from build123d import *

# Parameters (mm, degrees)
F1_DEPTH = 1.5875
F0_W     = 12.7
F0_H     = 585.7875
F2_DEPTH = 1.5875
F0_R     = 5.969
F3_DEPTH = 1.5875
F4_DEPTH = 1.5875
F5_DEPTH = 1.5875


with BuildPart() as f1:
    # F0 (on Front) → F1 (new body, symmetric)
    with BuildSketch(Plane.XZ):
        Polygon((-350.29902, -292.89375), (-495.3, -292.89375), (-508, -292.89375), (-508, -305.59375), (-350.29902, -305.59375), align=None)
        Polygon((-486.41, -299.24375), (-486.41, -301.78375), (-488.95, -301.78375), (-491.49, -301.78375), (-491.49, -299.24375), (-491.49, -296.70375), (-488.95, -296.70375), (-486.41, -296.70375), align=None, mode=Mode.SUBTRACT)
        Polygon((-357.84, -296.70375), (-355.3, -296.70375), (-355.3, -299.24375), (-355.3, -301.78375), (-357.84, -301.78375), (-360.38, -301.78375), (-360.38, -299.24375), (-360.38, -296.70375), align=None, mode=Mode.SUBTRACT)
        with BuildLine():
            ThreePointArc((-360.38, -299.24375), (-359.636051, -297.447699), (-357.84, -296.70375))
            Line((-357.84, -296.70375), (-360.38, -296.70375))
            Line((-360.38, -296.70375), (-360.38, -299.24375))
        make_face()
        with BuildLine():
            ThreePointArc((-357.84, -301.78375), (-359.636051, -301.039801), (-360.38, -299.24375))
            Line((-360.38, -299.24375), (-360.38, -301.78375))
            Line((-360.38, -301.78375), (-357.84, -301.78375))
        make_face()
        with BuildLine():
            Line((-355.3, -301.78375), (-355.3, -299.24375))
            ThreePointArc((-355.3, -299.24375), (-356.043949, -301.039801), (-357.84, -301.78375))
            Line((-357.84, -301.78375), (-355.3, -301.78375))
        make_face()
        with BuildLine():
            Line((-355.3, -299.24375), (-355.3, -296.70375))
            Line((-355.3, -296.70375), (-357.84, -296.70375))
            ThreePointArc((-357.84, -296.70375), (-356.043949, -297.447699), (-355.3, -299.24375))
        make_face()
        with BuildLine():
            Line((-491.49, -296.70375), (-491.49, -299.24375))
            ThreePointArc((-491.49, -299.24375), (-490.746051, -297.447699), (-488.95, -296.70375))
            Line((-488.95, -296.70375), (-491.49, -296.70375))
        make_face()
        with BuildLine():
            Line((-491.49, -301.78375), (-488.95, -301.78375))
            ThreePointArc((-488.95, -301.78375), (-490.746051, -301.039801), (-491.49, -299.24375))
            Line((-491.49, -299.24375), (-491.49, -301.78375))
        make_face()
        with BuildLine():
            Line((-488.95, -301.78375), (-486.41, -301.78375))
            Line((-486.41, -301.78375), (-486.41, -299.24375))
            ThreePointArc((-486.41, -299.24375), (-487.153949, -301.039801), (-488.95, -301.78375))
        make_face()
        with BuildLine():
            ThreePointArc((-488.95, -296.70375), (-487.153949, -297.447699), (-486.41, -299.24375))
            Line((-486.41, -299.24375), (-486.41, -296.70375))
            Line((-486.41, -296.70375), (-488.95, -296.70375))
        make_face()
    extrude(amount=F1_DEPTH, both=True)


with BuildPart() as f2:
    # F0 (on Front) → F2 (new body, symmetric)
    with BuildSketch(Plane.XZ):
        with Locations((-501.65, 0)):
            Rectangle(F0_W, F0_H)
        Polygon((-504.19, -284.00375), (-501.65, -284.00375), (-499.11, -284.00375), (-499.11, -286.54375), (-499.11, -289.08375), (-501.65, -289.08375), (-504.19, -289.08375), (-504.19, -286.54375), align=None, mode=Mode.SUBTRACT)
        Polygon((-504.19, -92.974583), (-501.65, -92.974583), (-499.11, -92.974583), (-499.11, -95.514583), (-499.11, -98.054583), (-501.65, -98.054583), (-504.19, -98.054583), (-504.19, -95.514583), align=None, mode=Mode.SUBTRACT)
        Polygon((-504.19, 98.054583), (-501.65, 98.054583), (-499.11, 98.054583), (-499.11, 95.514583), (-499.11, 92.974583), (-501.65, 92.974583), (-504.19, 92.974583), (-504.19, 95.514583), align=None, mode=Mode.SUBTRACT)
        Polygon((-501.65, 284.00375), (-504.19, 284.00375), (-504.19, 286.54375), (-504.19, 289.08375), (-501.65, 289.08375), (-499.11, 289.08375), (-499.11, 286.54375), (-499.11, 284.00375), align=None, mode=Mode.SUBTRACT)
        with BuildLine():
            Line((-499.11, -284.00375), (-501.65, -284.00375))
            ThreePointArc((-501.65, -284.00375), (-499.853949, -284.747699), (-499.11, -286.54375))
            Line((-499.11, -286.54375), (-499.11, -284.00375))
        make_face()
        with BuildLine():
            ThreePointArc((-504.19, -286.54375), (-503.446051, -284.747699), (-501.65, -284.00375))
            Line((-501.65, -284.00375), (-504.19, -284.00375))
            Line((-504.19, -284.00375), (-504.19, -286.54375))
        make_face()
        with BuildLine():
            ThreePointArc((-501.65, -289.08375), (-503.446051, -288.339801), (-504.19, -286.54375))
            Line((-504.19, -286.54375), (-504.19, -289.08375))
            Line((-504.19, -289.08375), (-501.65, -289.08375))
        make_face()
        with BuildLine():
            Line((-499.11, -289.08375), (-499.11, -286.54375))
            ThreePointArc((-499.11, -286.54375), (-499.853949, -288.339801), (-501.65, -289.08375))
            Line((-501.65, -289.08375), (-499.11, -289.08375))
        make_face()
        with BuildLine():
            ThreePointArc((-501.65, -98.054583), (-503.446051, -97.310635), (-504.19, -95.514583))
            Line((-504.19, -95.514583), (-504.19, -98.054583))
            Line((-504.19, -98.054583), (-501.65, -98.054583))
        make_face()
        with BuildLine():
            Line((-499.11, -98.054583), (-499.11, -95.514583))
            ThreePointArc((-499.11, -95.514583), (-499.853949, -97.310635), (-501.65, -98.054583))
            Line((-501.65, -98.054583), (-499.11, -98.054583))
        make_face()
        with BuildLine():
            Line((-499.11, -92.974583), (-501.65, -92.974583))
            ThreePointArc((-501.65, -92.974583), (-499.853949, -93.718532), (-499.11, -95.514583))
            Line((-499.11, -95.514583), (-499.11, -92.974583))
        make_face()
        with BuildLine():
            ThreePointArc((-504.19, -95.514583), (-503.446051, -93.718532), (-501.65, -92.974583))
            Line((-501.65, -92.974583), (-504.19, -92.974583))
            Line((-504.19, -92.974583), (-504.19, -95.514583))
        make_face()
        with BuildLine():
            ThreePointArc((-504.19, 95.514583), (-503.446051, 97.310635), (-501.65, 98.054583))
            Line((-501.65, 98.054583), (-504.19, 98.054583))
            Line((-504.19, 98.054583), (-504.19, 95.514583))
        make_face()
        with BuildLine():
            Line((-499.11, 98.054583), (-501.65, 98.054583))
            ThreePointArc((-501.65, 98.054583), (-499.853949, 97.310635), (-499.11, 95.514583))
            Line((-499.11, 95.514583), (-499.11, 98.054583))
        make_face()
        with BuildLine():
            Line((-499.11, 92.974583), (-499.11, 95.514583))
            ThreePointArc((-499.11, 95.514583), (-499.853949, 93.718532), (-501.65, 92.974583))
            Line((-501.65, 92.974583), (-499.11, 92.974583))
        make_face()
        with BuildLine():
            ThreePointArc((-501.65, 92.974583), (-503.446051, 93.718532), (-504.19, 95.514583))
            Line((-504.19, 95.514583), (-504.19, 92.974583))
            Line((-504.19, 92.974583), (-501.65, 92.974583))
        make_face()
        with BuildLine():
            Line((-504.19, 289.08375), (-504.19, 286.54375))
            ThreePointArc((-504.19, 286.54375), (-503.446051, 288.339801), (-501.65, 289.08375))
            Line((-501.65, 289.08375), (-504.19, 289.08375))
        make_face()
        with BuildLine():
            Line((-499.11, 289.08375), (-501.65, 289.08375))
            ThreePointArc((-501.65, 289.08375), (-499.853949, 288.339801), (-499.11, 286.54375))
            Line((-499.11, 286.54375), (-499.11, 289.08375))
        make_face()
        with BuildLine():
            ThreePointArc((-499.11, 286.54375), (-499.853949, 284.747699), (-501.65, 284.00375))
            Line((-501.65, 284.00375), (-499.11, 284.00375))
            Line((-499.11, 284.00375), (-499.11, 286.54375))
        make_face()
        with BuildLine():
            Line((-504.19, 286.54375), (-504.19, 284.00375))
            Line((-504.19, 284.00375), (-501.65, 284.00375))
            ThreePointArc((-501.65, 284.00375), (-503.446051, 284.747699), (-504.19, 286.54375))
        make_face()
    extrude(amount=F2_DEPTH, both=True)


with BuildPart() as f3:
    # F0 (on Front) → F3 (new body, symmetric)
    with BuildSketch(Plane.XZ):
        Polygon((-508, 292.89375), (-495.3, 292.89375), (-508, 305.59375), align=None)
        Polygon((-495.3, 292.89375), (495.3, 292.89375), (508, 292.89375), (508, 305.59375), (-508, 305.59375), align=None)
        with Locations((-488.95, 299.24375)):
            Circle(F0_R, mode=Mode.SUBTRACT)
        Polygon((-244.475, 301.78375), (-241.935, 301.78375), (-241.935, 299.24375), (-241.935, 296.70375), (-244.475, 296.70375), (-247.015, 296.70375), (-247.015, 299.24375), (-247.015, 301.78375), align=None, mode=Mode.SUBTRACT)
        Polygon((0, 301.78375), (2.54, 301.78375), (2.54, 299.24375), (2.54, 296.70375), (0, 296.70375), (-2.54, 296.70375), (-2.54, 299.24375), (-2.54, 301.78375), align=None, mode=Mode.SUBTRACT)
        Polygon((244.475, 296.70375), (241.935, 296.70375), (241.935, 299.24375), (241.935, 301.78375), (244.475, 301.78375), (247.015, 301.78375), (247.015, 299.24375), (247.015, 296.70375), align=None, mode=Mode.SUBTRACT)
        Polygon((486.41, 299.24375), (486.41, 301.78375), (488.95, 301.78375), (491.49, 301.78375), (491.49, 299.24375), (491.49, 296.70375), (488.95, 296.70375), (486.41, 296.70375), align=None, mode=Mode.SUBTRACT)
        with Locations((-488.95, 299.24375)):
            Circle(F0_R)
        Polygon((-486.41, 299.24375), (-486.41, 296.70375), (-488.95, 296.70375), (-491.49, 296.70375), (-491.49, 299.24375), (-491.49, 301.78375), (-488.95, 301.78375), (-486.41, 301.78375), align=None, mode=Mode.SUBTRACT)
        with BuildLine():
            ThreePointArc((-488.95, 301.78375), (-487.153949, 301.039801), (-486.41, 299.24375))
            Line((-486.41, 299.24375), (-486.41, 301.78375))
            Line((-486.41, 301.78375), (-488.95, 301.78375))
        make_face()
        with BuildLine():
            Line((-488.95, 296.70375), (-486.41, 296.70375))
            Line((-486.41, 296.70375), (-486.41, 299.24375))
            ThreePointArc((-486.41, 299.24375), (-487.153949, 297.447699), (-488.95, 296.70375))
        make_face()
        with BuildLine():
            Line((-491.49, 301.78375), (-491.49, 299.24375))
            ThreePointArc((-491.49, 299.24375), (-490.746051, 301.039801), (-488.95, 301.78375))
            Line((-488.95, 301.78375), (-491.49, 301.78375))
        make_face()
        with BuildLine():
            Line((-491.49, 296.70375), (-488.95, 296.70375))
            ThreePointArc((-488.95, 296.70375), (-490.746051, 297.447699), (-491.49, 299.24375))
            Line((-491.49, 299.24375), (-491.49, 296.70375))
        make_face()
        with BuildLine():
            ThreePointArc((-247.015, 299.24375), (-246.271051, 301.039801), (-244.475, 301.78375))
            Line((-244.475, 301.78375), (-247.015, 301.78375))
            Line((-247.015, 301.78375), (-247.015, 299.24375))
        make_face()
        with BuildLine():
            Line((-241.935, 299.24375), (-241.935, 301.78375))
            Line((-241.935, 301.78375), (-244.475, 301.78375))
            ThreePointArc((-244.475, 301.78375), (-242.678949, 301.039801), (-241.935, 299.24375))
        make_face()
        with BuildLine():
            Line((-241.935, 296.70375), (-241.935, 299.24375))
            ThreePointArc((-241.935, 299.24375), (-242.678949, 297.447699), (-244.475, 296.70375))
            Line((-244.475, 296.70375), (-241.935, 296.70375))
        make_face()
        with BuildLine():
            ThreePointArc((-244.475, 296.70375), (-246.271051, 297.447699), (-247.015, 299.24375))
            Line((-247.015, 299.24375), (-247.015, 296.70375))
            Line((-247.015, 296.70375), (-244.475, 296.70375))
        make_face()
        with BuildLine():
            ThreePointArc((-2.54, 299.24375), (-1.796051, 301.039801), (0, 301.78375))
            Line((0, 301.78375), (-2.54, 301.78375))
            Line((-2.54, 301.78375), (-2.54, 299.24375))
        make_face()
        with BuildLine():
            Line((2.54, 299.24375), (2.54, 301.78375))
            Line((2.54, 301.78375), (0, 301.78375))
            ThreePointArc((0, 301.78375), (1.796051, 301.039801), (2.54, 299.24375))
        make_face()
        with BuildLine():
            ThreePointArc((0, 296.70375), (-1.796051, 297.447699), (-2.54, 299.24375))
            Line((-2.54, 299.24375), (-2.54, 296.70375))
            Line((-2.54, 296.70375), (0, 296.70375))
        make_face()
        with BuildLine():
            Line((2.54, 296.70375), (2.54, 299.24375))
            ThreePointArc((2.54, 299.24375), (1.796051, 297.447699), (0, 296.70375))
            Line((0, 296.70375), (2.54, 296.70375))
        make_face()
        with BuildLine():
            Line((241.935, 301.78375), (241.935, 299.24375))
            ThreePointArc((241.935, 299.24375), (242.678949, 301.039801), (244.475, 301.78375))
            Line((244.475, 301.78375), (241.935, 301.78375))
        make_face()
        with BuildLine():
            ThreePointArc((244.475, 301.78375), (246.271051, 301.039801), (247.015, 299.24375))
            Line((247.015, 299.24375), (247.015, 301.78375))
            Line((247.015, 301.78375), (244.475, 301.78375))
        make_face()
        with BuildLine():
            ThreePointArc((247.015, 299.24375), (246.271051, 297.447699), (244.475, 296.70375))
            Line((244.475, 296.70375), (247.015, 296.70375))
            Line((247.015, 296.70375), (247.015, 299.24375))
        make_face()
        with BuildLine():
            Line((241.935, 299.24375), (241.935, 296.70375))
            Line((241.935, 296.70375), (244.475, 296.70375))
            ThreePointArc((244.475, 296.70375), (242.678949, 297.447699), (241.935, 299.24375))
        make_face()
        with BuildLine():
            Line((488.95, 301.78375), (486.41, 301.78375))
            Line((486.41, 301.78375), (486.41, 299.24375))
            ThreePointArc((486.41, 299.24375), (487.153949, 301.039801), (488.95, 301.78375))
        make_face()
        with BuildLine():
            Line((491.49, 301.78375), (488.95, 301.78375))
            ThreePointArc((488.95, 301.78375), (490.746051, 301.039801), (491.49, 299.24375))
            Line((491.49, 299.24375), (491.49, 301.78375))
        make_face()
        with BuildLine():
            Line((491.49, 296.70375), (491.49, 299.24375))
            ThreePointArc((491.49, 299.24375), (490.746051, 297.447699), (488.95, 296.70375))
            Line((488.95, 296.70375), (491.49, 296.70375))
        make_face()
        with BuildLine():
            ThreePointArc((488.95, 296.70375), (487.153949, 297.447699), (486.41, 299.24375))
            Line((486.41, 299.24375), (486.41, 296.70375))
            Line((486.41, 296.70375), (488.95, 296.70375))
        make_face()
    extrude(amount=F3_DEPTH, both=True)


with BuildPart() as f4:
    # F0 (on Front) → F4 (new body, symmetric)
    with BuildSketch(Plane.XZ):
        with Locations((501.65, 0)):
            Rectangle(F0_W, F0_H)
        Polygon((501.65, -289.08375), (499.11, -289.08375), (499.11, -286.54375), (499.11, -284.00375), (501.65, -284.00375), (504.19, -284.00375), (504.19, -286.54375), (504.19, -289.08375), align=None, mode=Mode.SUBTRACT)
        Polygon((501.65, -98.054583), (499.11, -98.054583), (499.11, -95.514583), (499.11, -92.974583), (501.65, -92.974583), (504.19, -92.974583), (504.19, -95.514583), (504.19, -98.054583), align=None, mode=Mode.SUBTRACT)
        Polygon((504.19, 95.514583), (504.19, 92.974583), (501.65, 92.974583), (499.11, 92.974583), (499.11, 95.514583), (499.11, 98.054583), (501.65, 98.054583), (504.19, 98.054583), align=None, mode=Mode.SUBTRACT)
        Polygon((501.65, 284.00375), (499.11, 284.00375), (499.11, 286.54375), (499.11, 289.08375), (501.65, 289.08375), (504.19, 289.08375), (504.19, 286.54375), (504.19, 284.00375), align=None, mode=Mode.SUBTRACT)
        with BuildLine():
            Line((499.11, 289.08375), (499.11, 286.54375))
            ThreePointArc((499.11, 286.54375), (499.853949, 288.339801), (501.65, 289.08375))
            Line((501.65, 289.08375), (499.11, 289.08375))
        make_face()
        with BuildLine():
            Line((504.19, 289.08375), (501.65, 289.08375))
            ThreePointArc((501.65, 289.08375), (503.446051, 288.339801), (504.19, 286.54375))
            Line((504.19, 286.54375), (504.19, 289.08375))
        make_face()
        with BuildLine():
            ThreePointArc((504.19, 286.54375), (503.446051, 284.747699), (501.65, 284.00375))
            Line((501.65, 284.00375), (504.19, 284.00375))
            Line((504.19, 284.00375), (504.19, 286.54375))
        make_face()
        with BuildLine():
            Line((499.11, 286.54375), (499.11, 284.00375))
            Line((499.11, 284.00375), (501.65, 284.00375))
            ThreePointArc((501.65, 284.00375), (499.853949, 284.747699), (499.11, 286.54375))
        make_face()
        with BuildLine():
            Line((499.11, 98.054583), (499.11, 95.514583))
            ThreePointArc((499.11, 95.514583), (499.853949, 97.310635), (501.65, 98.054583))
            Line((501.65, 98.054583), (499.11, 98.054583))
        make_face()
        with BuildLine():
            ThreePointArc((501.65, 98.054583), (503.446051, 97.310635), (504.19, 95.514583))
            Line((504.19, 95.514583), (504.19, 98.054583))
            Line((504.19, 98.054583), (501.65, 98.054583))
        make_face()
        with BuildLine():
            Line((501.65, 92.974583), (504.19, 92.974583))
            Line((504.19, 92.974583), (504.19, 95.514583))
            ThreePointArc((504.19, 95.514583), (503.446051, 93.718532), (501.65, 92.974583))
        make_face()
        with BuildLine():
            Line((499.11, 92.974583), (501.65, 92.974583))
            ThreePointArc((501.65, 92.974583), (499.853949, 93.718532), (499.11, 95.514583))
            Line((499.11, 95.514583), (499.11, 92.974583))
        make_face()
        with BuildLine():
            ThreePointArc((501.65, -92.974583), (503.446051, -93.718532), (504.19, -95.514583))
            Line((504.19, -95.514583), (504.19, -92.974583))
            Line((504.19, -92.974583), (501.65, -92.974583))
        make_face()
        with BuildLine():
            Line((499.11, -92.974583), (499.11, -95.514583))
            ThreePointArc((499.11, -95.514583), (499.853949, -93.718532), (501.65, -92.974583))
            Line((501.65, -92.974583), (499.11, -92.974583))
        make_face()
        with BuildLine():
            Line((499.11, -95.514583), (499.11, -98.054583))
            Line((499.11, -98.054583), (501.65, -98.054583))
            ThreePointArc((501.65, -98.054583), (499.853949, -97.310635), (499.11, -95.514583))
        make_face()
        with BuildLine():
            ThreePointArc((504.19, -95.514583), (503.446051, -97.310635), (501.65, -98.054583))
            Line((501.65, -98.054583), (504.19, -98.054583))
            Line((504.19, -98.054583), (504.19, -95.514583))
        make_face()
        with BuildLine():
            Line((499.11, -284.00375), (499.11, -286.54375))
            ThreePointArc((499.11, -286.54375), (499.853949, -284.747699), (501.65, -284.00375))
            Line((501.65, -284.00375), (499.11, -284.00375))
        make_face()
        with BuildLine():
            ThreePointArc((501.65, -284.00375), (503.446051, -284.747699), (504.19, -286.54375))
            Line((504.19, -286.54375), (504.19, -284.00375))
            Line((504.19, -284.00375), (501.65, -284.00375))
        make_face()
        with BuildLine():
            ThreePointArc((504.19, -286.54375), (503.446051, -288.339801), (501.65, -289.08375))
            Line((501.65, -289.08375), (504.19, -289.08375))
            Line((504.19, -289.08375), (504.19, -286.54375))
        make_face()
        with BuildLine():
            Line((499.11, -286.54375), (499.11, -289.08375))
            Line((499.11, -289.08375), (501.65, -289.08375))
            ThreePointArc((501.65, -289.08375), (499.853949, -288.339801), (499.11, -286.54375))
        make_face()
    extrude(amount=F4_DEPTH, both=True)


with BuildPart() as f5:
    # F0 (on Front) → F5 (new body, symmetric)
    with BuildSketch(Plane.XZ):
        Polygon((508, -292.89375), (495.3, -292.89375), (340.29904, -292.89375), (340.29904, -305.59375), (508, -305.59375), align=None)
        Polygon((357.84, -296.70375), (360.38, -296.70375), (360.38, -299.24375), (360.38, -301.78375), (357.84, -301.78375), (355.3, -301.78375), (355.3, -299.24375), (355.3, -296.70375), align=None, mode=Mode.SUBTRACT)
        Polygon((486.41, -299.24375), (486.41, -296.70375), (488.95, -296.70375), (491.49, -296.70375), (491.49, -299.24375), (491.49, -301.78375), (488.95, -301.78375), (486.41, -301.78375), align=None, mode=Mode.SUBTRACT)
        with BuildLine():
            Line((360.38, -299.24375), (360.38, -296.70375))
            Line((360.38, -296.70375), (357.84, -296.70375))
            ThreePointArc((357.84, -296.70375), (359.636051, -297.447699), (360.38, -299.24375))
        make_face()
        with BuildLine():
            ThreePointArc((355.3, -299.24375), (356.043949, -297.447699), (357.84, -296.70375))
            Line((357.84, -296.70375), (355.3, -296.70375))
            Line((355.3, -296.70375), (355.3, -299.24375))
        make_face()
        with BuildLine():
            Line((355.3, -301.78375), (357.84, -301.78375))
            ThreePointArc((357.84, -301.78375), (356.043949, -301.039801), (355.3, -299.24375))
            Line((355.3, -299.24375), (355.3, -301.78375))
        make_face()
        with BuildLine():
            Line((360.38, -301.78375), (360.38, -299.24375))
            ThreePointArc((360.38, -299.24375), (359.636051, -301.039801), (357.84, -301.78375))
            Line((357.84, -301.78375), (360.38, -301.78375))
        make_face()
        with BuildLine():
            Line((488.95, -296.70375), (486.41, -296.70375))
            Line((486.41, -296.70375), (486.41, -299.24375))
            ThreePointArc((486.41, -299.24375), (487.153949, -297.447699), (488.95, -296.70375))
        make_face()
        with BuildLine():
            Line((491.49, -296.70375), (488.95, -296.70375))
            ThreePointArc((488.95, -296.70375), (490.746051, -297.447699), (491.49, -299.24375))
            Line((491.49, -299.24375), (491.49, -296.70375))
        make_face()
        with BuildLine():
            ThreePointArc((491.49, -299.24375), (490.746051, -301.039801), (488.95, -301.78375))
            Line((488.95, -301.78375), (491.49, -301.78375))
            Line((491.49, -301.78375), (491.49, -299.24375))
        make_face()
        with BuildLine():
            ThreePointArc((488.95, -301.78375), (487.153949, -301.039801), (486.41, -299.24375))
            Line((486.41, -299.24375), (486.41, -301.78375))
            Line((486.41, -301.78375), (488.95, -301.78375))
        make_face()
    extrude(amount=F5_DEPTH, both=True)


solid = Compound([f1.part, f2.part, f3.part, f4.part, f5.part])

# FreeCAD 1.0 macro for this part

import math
import FreeCAD as App
import Part
import Sketcher
Q = App.Units.Quantity

doc = App.newDocument("Part")
body = doc.addObject("PartDesign::Body", "Body")

sketch1 = body.newObject("Sketcher::SketchObject", "Sketch")
sketch1.AttachmentSupport = (doc.getObject("XZ_Plane"), [""])
sketch1.MapMode = "FlatFace"
sketch1.addGeometry([
    Part.LineSegment(App.Vector(-350.3, -292.9, 0), App.Vector(-508, -292.9, 0)),
    Part.LineSegment(App.Vector(-508, -292.9, 0), App.Vector(-508, -305.6, 0)),
    Part.LineSegment(App.Vector(-508, -305.6, 0), App.Vector(-350.3, -305.6, 0)),
    Part.LineSegment(App.Vector(-350.3, -305.6, 0), App.Vector(-350.3, -292.9, 0)),
    Part.ArcOfCircle(Part.Circle(App.Vector(-489, -299.2, 0), App.Vector(0, 0, 1), 2.5), math.radians(-90), math.radians(0)),
    Part.ArcOfCircle(Part.Circle(App.Vector(-488.9, -299.2, 0), App.Vector(0, 0, 1), 2.5), math.radians(-180), math.radians(-90)),
    Part.ArcOfCircle(Part.Circle(App.Vector(-488.9, -299.2, 0), App.Vector(0, 0, 1), 2.5), math.radians(90), math.radians(180)),
    Part.ArcOfCircle(Part.Circle(App.Vector(-489, -299.2, 0), App.Vector(0, 0, 1), 2.5), math.radians(0), math.radians(90)),
    Part.ArcOfCircle(Part.Circle(App.Vector(-357.8, -299.2, 0), App.Vector(0, 0, 1), 2.5), math.radians(-90), math.radians(0)),
    Part.ArcOfCircle(Part.Circle(App.Vector(-357.8, -299.2, 0), App.Vector(0, 0, 1), 2.5), math.radians(-180), math.radians(-90)),
    Part.ArcOfCircle(Part.Circle(App.Vector(-357.8, -299.2, 0), App.Vector(0, 0, 1), 2.5), math.radians(90), math.radians(180)),
    Part.ArcOfCircle(Part.Circle(App.Vector(-357.8, -299.2, 0), App.Vector(0, 0, 1), 2.5), math.radians(0), math.radians(90)),
], False)
sketch1.addConstraint([
    Sketcher.Constraint("Coincident", 0, 2, 1, 1),
    Sketcher.Constraint("Coincident", 1, 2, 2, 1),
    Sketcher.Constraint("Coincident", 2, 2, 3, 1),
    Sketcher.Constraint("Coincident", 3, 2, 0, 1),
    Sketcher.Constraint("Tangent", 4, 1, 5, 2),
    Sketcher.Constraint("Tangent", 5, 1, 6, 2),
    Sketcher.Constraint("Tangent", 6, 1, 7, 2),
    Sketcher.Constraint("Tangent", 7, 1, 4, 2),
    Sketcher.Constraint("Tangent", 8, 1, 9, 2),
    Sketcher.Constraint("Tangent", 9, 1, 10, 2),
    Sketcher.Constraint("Tangent", 10, 1, 11, 2),
    Sketcher.Constraint("Tangent", 11, 1, 8, 2),
    Sketcher.Constraint("Horizontal", 0),
    Sketcher.Constraint("Vertical", 1),
    Sketcher.Constraint("Horizontal", 2),
    Sketcher.Constraint("Vertical", 3),
    Sketcher.Constraint("Equal", 4, 5),
    Sketcher.Constraint("Equal", 7, 8),
    Sketcher.Constraint("Equal", 8, 9),
    Sketcher.Constraint("Horizontal", 7, 3, 8, 3),
    Sketcher.Constraint("Horizontal", 11, 3, 5, 1),
    Sketcher.Constraint("Horizontal", 5, 1, 7, 1),
    Sketcher.Constraint("Horizontal", 7, 1, 9, 1),
    Sketcher.Constraint("Horizontal", 9, 1, 11, 1),
    Sketcher.Constraint("Vertical", 7, 3, 4, 1),
    Sketcher.Constraint("Vertical", 4, 1, 6, 1),
    Sketcher.Constraint("Vertical", 11, 3, 8, 1),
    Sketcher.Constraint("Vertical", 8, 1, 10, 1),
    Sketcher.Constraint("Radius", 4, Q("0.1 in")),
    Sketcher.Constraint("DistanceY", 1, 2, 1, 1, Q("0.5 in")),
    Sketcher.Constraint("DistanceX", 0, 2, -1, 1, Q("20 in")),
    Sketcher.Constraint("DistanceX", 4, 3, -1, 1, Q("19.25 in")),
    Sketcher.Constraint("DistanceY", 4, 3, 0, 2, Q("0.25 in")),
    Sketcher.Constraint("DistanceX", 0, 2, 0, 1, Q("6.2087 in")),
    Sketcher.Constraint("DistanceY", 4, 3, -1, 1, Q("11.78125 in")),
    Sketcher.Constraint("DistanceX", 8, 3, -1, 1, 357.840001),
])
pad1 = body.newObject("PartDesign::Pad", "Pad")
pad1.Profile = sketch1
pad1.Length = Q("0.125 in")
pad1.Midplane = True
body2 = doc.addObject("PartDesign::Body", "Body001")

sketch2 = body2.newObject("Sketcher::SketchObject", "Sketch001")
sketch2.AttachmentSupport = (doc.getObject("XZ_Plane001"), [""])
sketch2.MapMode = "FlatFace"
sketch2.addGeometry([
    Part.LineSegment(App.Vector(-508, 292.9, 0), App.Vector(-508, -292.9, 0)),
    Part.LineSegment(App.Vector(-508, -292.9, 0), App.Vector(-495.3, -292.9, 0)),
    Part.LineSegment(App.Vector(-495.3, -292.9, 0), App.Vector(-495.3, 292.9, 0)),
    Part.LineSegment(App.Vector(-495.3, 292.9, 0), App.Vector(-508, 292.9, 0)),
    Part.ArcOfCircle(Part.Circle(App.Vector(-501.6, -286.5, 0), App.Vector(0, 0, 1), 2.5), math.radians(90), math.radians(180)),
    Part.ArcOfCircle(Part.Circle(App.Vector(-501.7, -286.5, 0), App.Vector(0, 0, 1), 2.5), math.radians(0), math.radians(90)),
    Part.ArcOfCircle(Part.Circle(App.Vector(-501.7, -286.5, 0), App.Vector(0, 0, 1), 2.5), math.radians(-90), math.radians(0)),
    Part.ArcOfCircle(Part.Circle(App.Vector(-501.6, -286.5, 0), App.Vector(0, 0, 1), 2.5), math.radians(-180), math.radians(-90)),
    Part.ArcOfCircle(Part.Circle(App.Vector(-501.7, -95.5, 0), App.Vector(0, 0, 1), 2.5), math.radians(0), math.radians(90)),
    Part.ArcOfCircle(Part.Circle(App.Vector(-501.6, -95.5, 0), App.Vector(0, 0, 1), 2.5), math.radians(-90), math.radians(0)),
    Part.ArcOfCircle(Part.Circle(App.Vector(-501.7, -95.5, 0), App.Vector(0, 0, 1), 2.5), math.radians(180), math.radians(270)),
    Part.ArcOfCircle(Part.Circle(App.Vector(-501.6, -95.5, 0), App.Vector(0, 0, 1), 2.5), math.radians(90), math.radians(180)),
    Part.ArcOfCircle(Part.Circle(App.Vector(-501.7, 95.5, 0), App.Vector(0, 0, 1), 2.5), math.radians(90), math.radians(180)),
    Part.ArcOfCircle(Part.Circle(App.Vector(-501.6, 95.5, 0), App.Vector(0, 0, 1), 2.5), math.radians(0), math.radians(90)),
    Part.ArcOfCircle(Part.Circle(App.Vector(-501.7, 95.5, 0), App.Vector(0, 0, 1), 2.5), math.radians(-90), math.radians(0)),
    Part.ArcOfCircle(Part.Circle(App.Vector(-501.6, 95.5, 0), App.Vector(0, 0, 1), 2.5), math.radians(-180), math.radians(-90)),
    Part.ArcOfCircle(Part.Circle(App.Vector(-501.6, 286.5, 0), App.Vector(0, 0, 1), 2.5), math.radians(90), math.radians(180)),
    Part.ArcOfCircle(Part.Circle(App.Vector(-501.7, 286.5, 0), App.Vector(0, 0, 1), 2.5), math.radians(0), math.radians(90)),
    Part.ArcOfCircle(Part.Circle(App.Vector(-501.7, 286.5, 0), App.Vector(0, 0, 1), 2.5), math.radians(-90), math.radians(0)),
    Part.ArcOfCircle(Part.Circle(App.Vector(-501.6, 286.5, 0), App.Vector(0, 0, 1), 2.5), math.radians(-180), math.radians(-90)),
], False)
sketch2.addConstraint([
    Sketcher.Constraint("Coincident", 0, 2, 1, 1),
    Sketcher.Constraint("Coincident", 1, 2, 2, 1),
    Sketcher.Constraint("Coincident", 2, 2, 3, 1),
    Sketcher.Constraint("Coincident", 3, 2, 0, 1),
    Sketcher.Constraint("Tangent", 4, 1, 5, 2),
    Sketcher.Constraint("Tangent", 5, 1, 6, 2),
    Sketcher.Constraint("Tangent", 6, 1, 7, 2),
    Sketcher.Constraint("Tangent", 7, 1, 4, 2),
    Sketcher.Constraint("Tangent", 8, 1, 9, 2),
    Sketcher.Constraint("Tangent", 9, 1, 10, 2),
    Sketcher.Constraint("Tangent", 10, 1, 11, 2),
    Sketcher.Constraint("Tangent", 11, 1, 8, 2),
    Sketcher.Constraint("Tangent", 12, 1, 13, 2),
    Sketcher.Constraint("Tangent", 13, 1, 14, 2),
    Sketcher.Constraint("Tangent", 14, 1, 15, 2),
    Sketcher.Constraint("Tangent", 15, 1, 12, 2),
    Sketcher.Constraint("Tangent", 16, 1, 17, 2),
    Sketcher.Constraint("Tangent", 17, 1, 18, 2),
    Sketcher.Constraint("Tangent", 18, 1, 19, 2),
    Sketcher.Constraint("Tangent", 19, 1, 16, 2),
    Sketcher.Constraint("Vertical", 0),
    Sketcher.Constraint("Horizontal", 1),
    Sketcher.Constraint("Vertical", 2),
    Sketcher.Constraint("Horizontal", 3),
    Sketcher.Constraint("Equal", 4, 5),
    Sketcher.Constraint("Equal", 7, 8),
    Sketcher.Constraint("Equal", 8, 9),
    Sketcher.Constraint("Equal", 11, 12),
    Sketcher.Constraint("Equal", 12, 13),
    Sketcher.Constraint("Equal", 15, 16),
    Sketcher.Constraint("Equal", 16, 17),
    Sketcher.Constraint("Symmetric", 8, 3, 12, 3, -1),
    Sketcher.Constraint("Symmetric", 4, 3, 16, 3, -1),
    Sketcher.Constraint("Horizontal", 7, 3, 5, 1),
    Sketcher.Constraint("Horizontal", 5, 1, 7, 1),
    Sketcher.Constraint("Horizontal", 11, 3, 8, 1),
    Sketcher.Constraint("Horizontal", 8, 1, 10, 1),
    Sketcher.Constraint("Horizontal", 15, 3, 13, 1),
    Sketcher.Constraint("Horizontal", 13, 1, 15, 1),
    Sketcher.Constraint("Horizontal", 19, 3, 17, 1),
    Sketcher.Constraint("Horizontal", 17, 1, 19, 1),
    Sketcher.Constraint("Vertical", 7, 3, 8, 3),
    Sketcher.Constraint("Vertical", 19, 3, 4, 1),
    Sketcher.Constraint("Vertical", 4, 1, 6, 1),
    Sketcher.Constraint("Vertical", 6, 1, 9, 1),
    Sketcher.Constraint("Vertical", 9, 1, 11, 1),
    Sketcher.Constraint("Vertical", 11, 1, 12, 1),
    Sketcher.Constraint("Vertical", 12, 1, 14, 1),
    Sketcher.Constraint("Vertical", 14, 1, 16, 1),
    Sketcher.Constraint("Vertical", 16, 1, 18, 1),
    Sketcher.Constraint("Radius", 4, Q("0.1 in")),
    Sketcher.Constraint("DistanceX", 1, 1, 1, 2, Q("0.5 in")),
    Sketcher.Constraint("DistanceX", 0, 2, -1, 1, Q("20 in")),
    Sketcher.Constraint("DistanceY", 0, 2, 0, 1, Q("23.0625 in")),
    Sketcher.Constraint("DistanceX", 4, 3, -1, 1, Q("19.75 in")),
    Sketcher.Constraint("DistanceY", 0, 2, 5, 3, Q("0.25 in")),
    Sketcher.Constraint("DistanceY", 19, 3, 2, 2, Q("0.25 in")),
    Sketcher.Constraint("DistanceY", 8, 3, -1, 1, 95.514584),
])
pad2 = body2.newObject("PartDesign::Pad", "Pad001")
pad2.Profile = sketch2
pad2.Length = Q("0.125 in")
pad2.Midplane = True
body3 = doc.addObject("PartDesign::Body", "Body002")

sketch3 = body3.newObject("Sketcher::SketchObject", "Sketch002")
sketch3.AttachmentSupport = (doc.getObject("XZ_Plane002"), [""])
sketch3.MapMode = "FlatFace"
sketch3.addGeometry([
    Part.LineSegment(App.Vector(-508, 292.9, 0), App.Vector(508, 292.9, 0)),
    Part.LineSegment(App.Vector(508, 292.9, 0), App.Vector(508, 305.6, 0)),
    Part.LineSegment(App.Vector(508, 305.6, 0), App.Vector(-508, 305.6, 0)),
    Part.LineSegment(App.Vector(-508, 305.6, 0), App.Vector(-508, 292.9, 0)),
    Part.ArcOfCircle(Part.Circle(App.Vector(-488.9, 299.2, 0), App.Vector(0, 0, 1), 2.5), math.radians(90), math.radians(180)),
    Part.ArcOfCircle(Part.Circle(App.Vector(-489, 299.2, 0), App.Vector(0, 0, 1), 2.5), math.radians(0), math.radians(90)),
    Part.ArcOfCircle(Part.Circle(App.Vector(-489, 299.2, 0), App.Vector(0, 0, 1), 2.5), math.radians(-90), math.radians(0)),
    Part.ArcOfCircle(Part.Circle(App.Vector(-488.9, 299.2, 0), App.Vector(0, 0, 1), 2.5), math.radians(-180), math.radians(-90)),
    Part.ArcOfCircle(Part.Circle(App.Vector(-244.5, 299.2, 0), App.Vector(0, 0, 1), 2.5), math.radians(90), math.radians(180)),
    Part.ArcOfCircle(Part.Circle(App.Vector(-244.5, 299.2, 0), App.Vector(0, 0, 1), 2.5), math.radians(0), math.radians(90)),
    Part.ArcOfCircle(Part.Circle(App.Vector(-244.5, 299.2, 0), App.Vector(0, 0, 1), 2.5), math.radians(-90), math.radians(0)),
    Part.ArcOfCircle(Part.Circle(App.Vector(-244.5, 299.2, 0), App.Vector(0, 0, 1), 2.5), math.radians(-180), math.radians(-90)),
    Part.ArcOfCircle(Part.Circle(App.Vector(0, 299.2, 0), App.Vector(0, 0, 1), 2.5), math.radians(-180), math.radians(-90)),
    Part.ArcOfCircle(Part.Circle(App.Vector(0, 299.2, 0), App.Vector(0, 0, 1), 2.5), math.radians(90), math.radians(180)),
    Part.ArcOfCircle(Part.Circle(App.Vector(0, 299.2, 0), App.Vector(0, 0, 1), 2.5), math.radians(0), math.radians(90)),
    Part.ArcOfCircle(Part.Circle(App.Vector(0, 299.2, 0), App.Vector(0, 0, 1), 2.5), math.radians(-90), math.radians(0)),
    Part.ArcOfCircle(Part.Circle(App.Vector(244.5, 299.2, 0), App.Vector(0, 0, 1), 2.5), math.radians(90), math.radians(180)),
    Part.ArcOfCircle(Part.Circle(App.Vector(244.5, 299.2, 0), App.Vector(0, 0, 1), 2.5), math.radians(0), math.radians(90)),
    Part.ArcOfCircle(Part.Circle(App.Vector(244.5, 299.2, 0), App.Vector(0, 0, 1), 2.5), math.radians(-90), math.radians(0)),
    Part.ArcOfCircle(Part.Circle(App.Vector(244.5, 299.2, 0), App.Vector(0, 0, 1), 2.5), math.radians(-180), math.radians(-90)),
    Part.ArcOfCircle(Part.Circle(App.Vector(489, 299.2, 0), App.Vector(0, 0, 1), 2.5), math.radians(90), math.radians(180)),
    Part.ArcOfCircle(Part.Circle(App.Vector(488.9, 299.2, 0), App.Vector(0, 0, 1), 2.5), math.radians(0), math.radians(90)),
    Part.ArcOfCircle(Part.Circle(App.Vector(488.9, 299.2, 0), App.Vector(0, 0, 1), 2.5), math.radians(-90), math.radians(0)),
    Part.ArcOfCircle(Part.Circle(App.Vector(489, 299.2, 0), App.Vector(0, 0, 1), 2.5), math.radians(-180), math.radians(-90)),
], False)
sketch3.addConstraint([
    Sketcher.Constraint("Coincident", 0, 2, 1, 1),
    Sketcher.Constraint("Coincident", 1, 2, 2, 1),
    Sketcher.Constraint("Coincident", 2, 2, 3, 1),
    Sketcher.Constraint("Coincident", 3, 2, 0, 1),
    Sketcher.Constraint("Tangent", 4, 1, 5, 2),
    Sketcher.Constraint("Tangent", 5, 1, 6, 2),
    Sketcher.Constraint("Tangent", 6, 1, 7, 2),
    Sketcher.Constraint("Tangent", 7, 1, 4, 2),
    Sketcher.Constraint("Tangent", 8, 1, 9, 2),
    Sketcher.Constraint("Tangent", 9, 1, 10, 2),
    Sketcher.Constraint("Tangent", 10, 1, 11, 2),
    Sketcher.Constraint("Tangent", 11, 1, 8, 2),
    Sketcher.Constraint("Tangent", 12, 1, 13, 2),
    Sketcher.Constraint("Tangent", 13, 1, 14, 2),
    Sketcher.Constraint("Tangent", 14, 1, 15, 2),
    Sketcher.Constraint("Tangent", 15, 1, 12, 2),
    Sketcher.Constraint("Tangent", 16, 1, 17, 2),
    Sketcher.Constraint("Tangent", 17, 1, 18, 2),
    Sketcher.Constraint("Tangent", 18, 1, 19, 2),
    Sketcher.Constraint("Tangent", 19, 1, 16, 2),
    Sketcher.Constraint("Tangent", 20, 1, 21, 2),
    Sketcher.Constraint("Tangent", 21, 1, 22, 2),
    Sketcher.Constraint("Tangent", 22, 1, 23, 2),
    Sketcher.Constraint("Tangent", 23, 1, 20, 2),
    Sketcher.Constraint("Horizontal", 0),
    Sketcher.Constraint("Vertical", 1),
    Sketcher.Constraint("Horizontal", 2),
    Sketcher.Constraint("Vertical", 3),
    Sketcher.Constraint("Equal", 4, 5),
    Sketcher.Constraint("Equal", 7, 8),
    Sketcher.Constraint("Equal", 8, 9),
    Sketcher.Constraint("Equal", 11, 12),
    Sketcher.Constraint("Equal", 12, 13),
    Sketcher.Constraint("Equal", 15, 16),
    Sketcher.Constraint("Equal", 16, 17),
    Sketcher.Constraint("Equal", 19, 20),
    Sketcher.Constraint("Equal", 20, 21),
    Sketcher.Constraint("Symmetric", 8, 3, 16, 3, -2),
    Sketcher.Constraint("Symmetric", 4, 3, 20, 3, -2),
    Sketcher.Constraint("Symmetric", 12, 1, 14, 1, -2),
    Sketcher.Constraint("PointOnObject", 13, 1, -2),
    Sketcher.Constraint("PointOnObject", 15, 1, -2),
    Sketcher.Constraint("Horizontal", 7, 3, 8, 3),
    Sketcher.Constraint("Horizontal", 11, 3, 12, 3),
    Sketcher.Constraint("Horizontal", 23, 3, 5, 1),
    Sketcher.Constraint("Horizontal", 5, 1, 7, 1),
    Sketcher.Constraint("Horizontal", 7, 1, 9, 1),
    Sketcher.Constraint("Horizontal", 9, 1, 11, 1),
    Sketcher.Constraint("Horizontal", 11, 1, 12, 1),
    Sketcher.Constraint("Horizontal", 14, 1, 17, 1),
    Sketcher.Constraint("Horizontal", 17, 1, 19, 1),
    Sketcher.Constraint("Horizontal", 19, 1, 21, 1),
    Sketcher.Constraint("Horizontal", 21, 1, 23, 1),
    Sketcher.Constraint("Vertical", 7, 3, 4, 1),
    Sketcher.Constraint("Vertical", 4, 1, 6, 1),
    Sketcher.Constraint("Vertical", 11, 3, 8, 1),
    Sketcher.Constraint("Vertical", 8, 1, 10, 1),
    Sketcher.Constraint("Vertical", 19, 3, 16, 1),
    Sketcher.Constraint("Vertical", 16, 1, 18, 1),
    Sketcher.Constraint("Vertical", 23, 3, 20, 1),
    Sketcher.Constraint("Vertical", 20, 1, 22, 1),
    Sketcher.Constraint("Radius", 4, Q("0.1 in")),
    Sketcher.Constraint("DistanceX", 0, 1, 0, 2, Q("40 in")),
    Sketcher.Constraint("DistanceY", 1, 1, 1, 2, Q("0.5 in")),
    Sketcher.Constraint("DistanceX", -1, 1, 0, 2, Q("20 in")),
    Sketcher.Constraint("DistanceX", 4, 3, -1, 1, Q("19.25 in")),
    Sketcher.Constraint("DistanceX", 8, 3, 16, 3, Q("19.25 in")),
    Sketcher.Constraint("DistanceY", 0, 2, 20, 3, Q("0.25 in")),
    Sketcher.Constraint("DistanceY", -1, 1, 4, 3, Q("11.78125 in")),
])
pad3 = body3.newObject("PartDesign::Pad", "Pad002")
pad3.Profile = sketch3
pad3.Length = Q("0.125 in")
pad3.Midplane = True
body4 = doc.addObject("PartDesign::Body", "Body003")

sketch4 = body4.newObject("Sketcher::SketchObject", "Sketch003")
sketch4.AttachmentSupport = (doc.getObject("XZ_Plane003"), [""])
sketch4.MapMode = "FlatFace"
sketch4.addGeometry([
    Part.LineSegment(App.Vector(495.3, 292.9, 0), App.Vector(495.3, -292.9, 0)),
    Part.LineSegment(App.Vector(495.3, -292.9, 0), App.Vector(508, -292.9, 0)),
    Part.LineSegment(App.Vector(508, -292.9, 0), App.Vector(508, 292.9, 0)),
    Part.LineSegment(App.Vector(508, 292.9, 0), App.Vector(495.3, 292.9, 0)),
    Part.ArcOfCircle(Part.Circle(App.Vector(501.7, -286.5, 0), App.Vector(0, 0, 1), 2.5), math.radians(90), math.radians(180)),
    Part.ArcOfCircle(Part.Circle(App.Vector(501.6, -286.5, 0), App.Vector(0, 0, 1), 2.5), math.radians(0), math.radians(90)),
    Part.ArcOfCircle(Part.Circle(App.Vector(501.6, -286.5, 0), App.Vector(0, 0, 1), 2.5), math.radians(-90), math.radians(0)),
    Part.ArcOfCircle(Part.Circle(App.Vector(501.7, -286.5, 0), App.Vector(0, 0, 1), 2.5), math.radians(-180), math.radians(-90)),
    Part.ArcOfCircle(Part.Circle(App.Vector(501.6, -95.5, 0), App.Vector(0, 0, 1), 2.5), math.radians(180), math.radians(270)),
    Part.ArcOfCircle(Part.Circle(App.Vector(501.7, -95.5, 0), App.Vector(0, 0, 1), 2.5), math.radians(90), math.radians(180)),
    Part.ArcOfCircle(Part.Circle(App.Vector(501.6, -95.5, 0), App.Vector(0, 0, 1), 2.5), math.radians(0), math.radians(90)),
    Part.ArcOfCircle(Part.Circle(App.Vector(501.7, -95.5, 0), App.Vector(0, 0, 1), 2.5), math.radians(-90), math.radians(0)),
    Part.ArcOfCircle(Part.Circle(App.Vector(501.6, 95.5, 0), App.Vector(0, 0, 1), 2.5), math.radians(90), math.radians(180)),
    Part.ArcOfCircle(Part.Circle(App.Vector(501.7, 95.5, 0), App.Vector(0, 0, 1), 2.5), math.radians(0), math.radians(90)),
    Part.ArcOfCircle(Part.Circle(App.Vector(501.6, 95.5, 0), App.Vector(0, 0, 1), 2.5), math.radians(-90), math.radians(0)),
    Part.ArcOfCircle(Part.Circle(App.Vector(501.7, 95.5, 0), App.Vector(0, 0, 1), 2.5), math.radians(-180), math.radians(-90)),
    Part.ArcOfCircle(Part.Circle(App.Vector(501.7, 286.5, 0), App.Vector(0, 0, 1), 2.5), math.radians(90), math.radians(180)),
    Part.ArcOfCircle(Part.Circle(App.Vector(501.6, 286.5, 0), App.Vector(0, 0, 1), 2.5), math.radians(0), math.radians(90)),
    Part.ArcOfCircle(Part.Circle(App.Vector(501.6, 286.5, 0), App.Vector(0, 0, 1), 2.5), math.radians(-90), math.radians(0)),
    Part.ArcOfCircle(Part.Circle(App.Vector(501.7, 286.5, 0), App.Vector(0, 0, 1), 2.5), math.radians(-180), math.radians(-90)),
], False)
sketch4.addConstraint([
    Sketcher.Constraint("Coincident", 0, 2, 1, 1),
    Sketcher.Constraint("Coincident", 1, 2, 2, 1),
    Sketcher.Constraint("Coincident", 2, 2, 3, 1),
    Sketcher.Constraint("Coincident", 3, 2, 0, 1),
    Sketcher.Constraint("Tangent", 4, 1, 5, 2),
    Sketcher.Constraint("Tangent", 5, 1, 6, 2),
    Sketcher.Constraint("Tangent", 6, 1, 7, 2),
    Sketcher.Constraint("Tangent", 7, 1, 4, 2),
    Sketcher.Constraint("Tangent", 8, 1, 9, 2),
    Sketcher.Constraint("Tangent", 9, 1, 10, 2),
    Sketcher.Constraint("Tangent", 10, 1, 11, 2),
    Sketcher.Constraint("Tangent", 11, 1, 8, 2),
    Sketcher.Constraint("Tangent", 12, 1, 13, 2),
    Sketcher.Constraint("Tangent", 13, 1, 14, 2),
    Sketcher.Constraint("Tangent", 14, 1, 15, 2),
    Sketcher.Constraint("Tangent", 15, 1, 12, 2),
    Sketcher.Constraint("Tangent", 16, 1, 17, 2),
    Sketcher.Constraint("Tangent", 17, 1, 18, 2),
    Sketcher.Constraint("Tangent", 18, 1, 19, 2),
    Sketcher.Constraint("Tangent", 19, 1, 16, 2),
    Sketcher.Constraint("Vertical", 0),
    Sketcher.Constraint("Horizontal", 1),
    Sketcher.Constraint("Vertical", 2),
    Sketcher.Constraint("Horizontal", 3),
    Sketcher.Constraint("Equal", 4, 5),
    Sketcher.Constraint("Equal", 7, 8),
    Sketcher.Constraint("Equal", 8, 9),
    Sketcher.Constraint("Equal", 11, 12),
    Sketcher.Constraint("Equal", 12, 13),
    Sketcher.Constraint("Equal", 15, 16),
    Sketcher.Constraint("Equal", 16, 17),
    Sketcher.Constraint("Symmetric", 8, 3, 12, 3, -1),
    Sketcher.Constraint("Symmetric", 4, 3, 16, 3, -1),
    Sketcher.Constraint("Horizontal", 7, 3, 5, 1),
    Sketcher.Constraint("Horizontal", 5, 1, 7, 1),
    Sketcher.Constraint("Horizontal", 11, 3, 8, 1),
    Sketcher.Constraint("Horizontal", 8, 1, 10, 1),
    Sketcher.Constraint("Horizontal", 15, 3, 13, 1),
    Sketcher.Constraint("Horizontal", 13, 1, 15, 1),
    Sketcher.Constraint("Horizontal", 19, 3, 17, 1),
    Sketcher.Constraint("Horizontal", 17, 1, 19, 1),
    Sketcher.Constraint("Vertical", 7, 3, 8, 3),
    Sketcher.Constraint("Vertical", 19, 3, 4, 1),
    Sketcher.Constraint("Vertical", 4, 1, 6, 1),
    Sketcher.Constraint("Vertical", 6, 1, 9, 1),
    Sketcher.Constraint("Vertical", 9, 1, 11, 1),
    Sketcher.Constraint("Vertical", 11, 1, 12, 1),
    Sketcher.Constraint("Vertical", 12, 1, 14, 1),
    Sketcher.Constraint("Vertical", 14, 1, 16, 1),
    Sketcher.Constraint("Vertical", 16, 1, 18, 1),
    Sketcher.Constraint("Radius", 4, Q("0.1 in")),
    Sketcher.Constraint("DistanceX", 1, 1, 1, 2, Q("0.5 in")),
    Sketcher.Constraint("DistanceX", -1, 1, 1, 2, Q("20 in")),
    Sketcher.Constraint("DistanceY", 0, 2, 0, 1, Q("23.0625 in")),
    Sketcher.Constraint("DistanceX", -1, 1, 4, 3, Q("19.75 in")),
    Sketcher.Constraint("DistanceY", 0, 2, 5, 3, Q("0.25 in")),
    Sketcher.Constraint("DistanceY", 19, 3, 2, 2, Q("0.25 in")),
    Sketcher.Constraint("DistanceY", 8, 3, -1, 1, 95.514584),
])
pad4 = body4.newObject("PartDesign::Pad", "Pad003")
pad4.Profile = sketch4
pad4.Length = Q("0.125 in")
pad4.Midplane = True
body5 = doc.addObject("PartDesign::Body", "Body004")

sketch5 = body5.newObject("Sketcher::SketchObject", "Sketch004")
sketch5.AttachmentSupport = (doc.getObject("XZ_Plane004"), [""])
sketch5.MapMode = "FlatFace"
sketch5.addGeometry([
    Part.LineSegment(App.Vector(508, -292.9, 0), App.Vector(340.3, -292.9, 0)),
    Part.LineSegment(App.Vector(340.3, -292.9, 0), App.Vector(340.3, -305.6, 0)),
    Part.LineSegment(App.Vector(340.3, -305.6, 0), App.Vector(508, -305.6, 0)),
    Part.LineSegment(App.Vector(508, -305.6, 0), App.Vector(508, -292.9, 0)),
    Part.ArcOfCircle(Part.Circle(App.Vector(357.8, -299.2, 0), App.Vector(0, 0, 1), 2.5), math.radians(0), math.radians(90)),
    Part.ArcOfCircle(Part.Circle(App.Vector(357.8, -299.2, 0), App.Vector(0, 0, 1), 2.5), math.radians(-90), math.radians(0)),
    Part.ArcOfCircle(Part.Circle(App.Vector(357.8, -299.2, 0), App.Vector(0, 0, 1), 2.5), math.radians(-180), math.radians(-90)),
    Part.ArcOfCircle(Part.Circle(App.Vector(357.8, -299.2, 0), App.Vector(0, 0, 1), 2.5), math.radians(90), math.radians(180)),
    Part.ArcOfCircle(Part.Circle(App.Vector(489, -299.2, 0), App.Vector(0, 0, 1), 2.5), math.radians(90), math.radians(180)),
    Part.ArcOfCircle(Part.Circle(App.Vector(488.9, -299.2, 0), App.Vector(0, 0, 1), 2.5), math.radians(0), math.radians(90)),
    Part.ArcOfCircle(Part.Circle(App.Vector(488.9, -299.2, 0), App.Vector(0, 0, 1), 2.5), math.radians(-90), math.radians(0)),
    Part.ArcOfCircle(Part.Circle(App.Vector(489, -299.2, 0), App.Vector(0, 0, 1), 2.5), math.radians(-180), math.radians(-90)),
], False)
sketch5.addConstraint([
    Sketcher.Constraint("Coincident", 0, 2, 1, 1),
    Sketcher.Constraint("Coincident", 1, 2, 2, 1),
    Sketcher.Constraint("Coincident", 2, 2, 3, 1),
    Sketcher.Constraint("Coincident", 3, 2, 0, 1),
    Sketcher.Constraint("Tangent", 4, 1, 5, 2),
    Sketcher.Constraint("Tangent", 5, 1, 6, 2),
    Sketcher.Constraint("Tangent", 6, 1, 7, 2),
    Sketcher.Constraint("Tangent", 7, 1, 4, 2),
    Sketcher.Constraint("Tangent", 8, 1, 9, 2),
    Sketcher.Constraint("Tangent", 9, 1, 10, 2),
    Sketcher.Constraint("Tangent", 10, 1, 11, 2),
    Sketcher.Constraint("Tangent", 11, 1, 8, 2),
    Sketcher.Constraint("Horizontal", 0),
    Sketcher.Constraint("Vertical", 1),
    Sketcher.Constraint("Horizontal", 2),
    Sketcher.Constraint("Vertical", 3),
    Sketcher.Constraint("Equal", 4, 5),
    Sketcher.Constraint("Equal", 7, 8),
    Sketcher.Constraint("Equal", 8, 9),
    Sketcher.Constraint("Horizontal", 7, 3, 8, 3),
    Sketcher.Constraint("Horizontal", 11, 3, 4, 1),
    Sketcher.Constraint("Horizontal", 4, 1, 6, 1),
    Sketcher.Constraint("Horizontal", 6, 1, 9, 1),
    Sketcher.Constraint("Horizontal", 9, 1, 11, 1),
    Sketcher.Constraint("Vertical", 7, 3, 5, 1),
    Sketcher.Constraint("Vertical", 5, 1, 7, 1),
    Sketcher.Constraint("Vertical", 11, 3, 8, 1),
    Sketcher.Constraint("Vertical", 8, 1, 10, 1),
    Sketcher.Constraint("Radius", 4, Q("0.1 in")),
    Sketcher.Constraint("DistanceY", 1, 2, 1, 1, Q("0.5 in")),
    Sketcher.Constraint("DistanceX", -1, 1, 2, 2, Q("20 in")),
    Sketcher.Constraint("DistanceX", -1, 1, 8, 3, Q("19.25 in")),
    Sketcher.Constraint("DistanceY", 5, 3, 0, 2, Q("0.25 in")),
    Sketcher.Constraint("DistanceX", 0, 2, 0, 1, Q("6.6024 in")),
    Sketcher.Constraint("DistanceY", 4, 3, -1, 1, Q("11.78125 in")),
    Sketcher.Constraint("DistanceX", -1, 1, 4, 3, 357.839999),
])
pad5 = body5.newObject("PartDesign::Pad", "Pad004")
pad5.Profile = sketch5
pad5.Length = Q("0.125 in")
pad5.Midplane = True

doc.recompute()
